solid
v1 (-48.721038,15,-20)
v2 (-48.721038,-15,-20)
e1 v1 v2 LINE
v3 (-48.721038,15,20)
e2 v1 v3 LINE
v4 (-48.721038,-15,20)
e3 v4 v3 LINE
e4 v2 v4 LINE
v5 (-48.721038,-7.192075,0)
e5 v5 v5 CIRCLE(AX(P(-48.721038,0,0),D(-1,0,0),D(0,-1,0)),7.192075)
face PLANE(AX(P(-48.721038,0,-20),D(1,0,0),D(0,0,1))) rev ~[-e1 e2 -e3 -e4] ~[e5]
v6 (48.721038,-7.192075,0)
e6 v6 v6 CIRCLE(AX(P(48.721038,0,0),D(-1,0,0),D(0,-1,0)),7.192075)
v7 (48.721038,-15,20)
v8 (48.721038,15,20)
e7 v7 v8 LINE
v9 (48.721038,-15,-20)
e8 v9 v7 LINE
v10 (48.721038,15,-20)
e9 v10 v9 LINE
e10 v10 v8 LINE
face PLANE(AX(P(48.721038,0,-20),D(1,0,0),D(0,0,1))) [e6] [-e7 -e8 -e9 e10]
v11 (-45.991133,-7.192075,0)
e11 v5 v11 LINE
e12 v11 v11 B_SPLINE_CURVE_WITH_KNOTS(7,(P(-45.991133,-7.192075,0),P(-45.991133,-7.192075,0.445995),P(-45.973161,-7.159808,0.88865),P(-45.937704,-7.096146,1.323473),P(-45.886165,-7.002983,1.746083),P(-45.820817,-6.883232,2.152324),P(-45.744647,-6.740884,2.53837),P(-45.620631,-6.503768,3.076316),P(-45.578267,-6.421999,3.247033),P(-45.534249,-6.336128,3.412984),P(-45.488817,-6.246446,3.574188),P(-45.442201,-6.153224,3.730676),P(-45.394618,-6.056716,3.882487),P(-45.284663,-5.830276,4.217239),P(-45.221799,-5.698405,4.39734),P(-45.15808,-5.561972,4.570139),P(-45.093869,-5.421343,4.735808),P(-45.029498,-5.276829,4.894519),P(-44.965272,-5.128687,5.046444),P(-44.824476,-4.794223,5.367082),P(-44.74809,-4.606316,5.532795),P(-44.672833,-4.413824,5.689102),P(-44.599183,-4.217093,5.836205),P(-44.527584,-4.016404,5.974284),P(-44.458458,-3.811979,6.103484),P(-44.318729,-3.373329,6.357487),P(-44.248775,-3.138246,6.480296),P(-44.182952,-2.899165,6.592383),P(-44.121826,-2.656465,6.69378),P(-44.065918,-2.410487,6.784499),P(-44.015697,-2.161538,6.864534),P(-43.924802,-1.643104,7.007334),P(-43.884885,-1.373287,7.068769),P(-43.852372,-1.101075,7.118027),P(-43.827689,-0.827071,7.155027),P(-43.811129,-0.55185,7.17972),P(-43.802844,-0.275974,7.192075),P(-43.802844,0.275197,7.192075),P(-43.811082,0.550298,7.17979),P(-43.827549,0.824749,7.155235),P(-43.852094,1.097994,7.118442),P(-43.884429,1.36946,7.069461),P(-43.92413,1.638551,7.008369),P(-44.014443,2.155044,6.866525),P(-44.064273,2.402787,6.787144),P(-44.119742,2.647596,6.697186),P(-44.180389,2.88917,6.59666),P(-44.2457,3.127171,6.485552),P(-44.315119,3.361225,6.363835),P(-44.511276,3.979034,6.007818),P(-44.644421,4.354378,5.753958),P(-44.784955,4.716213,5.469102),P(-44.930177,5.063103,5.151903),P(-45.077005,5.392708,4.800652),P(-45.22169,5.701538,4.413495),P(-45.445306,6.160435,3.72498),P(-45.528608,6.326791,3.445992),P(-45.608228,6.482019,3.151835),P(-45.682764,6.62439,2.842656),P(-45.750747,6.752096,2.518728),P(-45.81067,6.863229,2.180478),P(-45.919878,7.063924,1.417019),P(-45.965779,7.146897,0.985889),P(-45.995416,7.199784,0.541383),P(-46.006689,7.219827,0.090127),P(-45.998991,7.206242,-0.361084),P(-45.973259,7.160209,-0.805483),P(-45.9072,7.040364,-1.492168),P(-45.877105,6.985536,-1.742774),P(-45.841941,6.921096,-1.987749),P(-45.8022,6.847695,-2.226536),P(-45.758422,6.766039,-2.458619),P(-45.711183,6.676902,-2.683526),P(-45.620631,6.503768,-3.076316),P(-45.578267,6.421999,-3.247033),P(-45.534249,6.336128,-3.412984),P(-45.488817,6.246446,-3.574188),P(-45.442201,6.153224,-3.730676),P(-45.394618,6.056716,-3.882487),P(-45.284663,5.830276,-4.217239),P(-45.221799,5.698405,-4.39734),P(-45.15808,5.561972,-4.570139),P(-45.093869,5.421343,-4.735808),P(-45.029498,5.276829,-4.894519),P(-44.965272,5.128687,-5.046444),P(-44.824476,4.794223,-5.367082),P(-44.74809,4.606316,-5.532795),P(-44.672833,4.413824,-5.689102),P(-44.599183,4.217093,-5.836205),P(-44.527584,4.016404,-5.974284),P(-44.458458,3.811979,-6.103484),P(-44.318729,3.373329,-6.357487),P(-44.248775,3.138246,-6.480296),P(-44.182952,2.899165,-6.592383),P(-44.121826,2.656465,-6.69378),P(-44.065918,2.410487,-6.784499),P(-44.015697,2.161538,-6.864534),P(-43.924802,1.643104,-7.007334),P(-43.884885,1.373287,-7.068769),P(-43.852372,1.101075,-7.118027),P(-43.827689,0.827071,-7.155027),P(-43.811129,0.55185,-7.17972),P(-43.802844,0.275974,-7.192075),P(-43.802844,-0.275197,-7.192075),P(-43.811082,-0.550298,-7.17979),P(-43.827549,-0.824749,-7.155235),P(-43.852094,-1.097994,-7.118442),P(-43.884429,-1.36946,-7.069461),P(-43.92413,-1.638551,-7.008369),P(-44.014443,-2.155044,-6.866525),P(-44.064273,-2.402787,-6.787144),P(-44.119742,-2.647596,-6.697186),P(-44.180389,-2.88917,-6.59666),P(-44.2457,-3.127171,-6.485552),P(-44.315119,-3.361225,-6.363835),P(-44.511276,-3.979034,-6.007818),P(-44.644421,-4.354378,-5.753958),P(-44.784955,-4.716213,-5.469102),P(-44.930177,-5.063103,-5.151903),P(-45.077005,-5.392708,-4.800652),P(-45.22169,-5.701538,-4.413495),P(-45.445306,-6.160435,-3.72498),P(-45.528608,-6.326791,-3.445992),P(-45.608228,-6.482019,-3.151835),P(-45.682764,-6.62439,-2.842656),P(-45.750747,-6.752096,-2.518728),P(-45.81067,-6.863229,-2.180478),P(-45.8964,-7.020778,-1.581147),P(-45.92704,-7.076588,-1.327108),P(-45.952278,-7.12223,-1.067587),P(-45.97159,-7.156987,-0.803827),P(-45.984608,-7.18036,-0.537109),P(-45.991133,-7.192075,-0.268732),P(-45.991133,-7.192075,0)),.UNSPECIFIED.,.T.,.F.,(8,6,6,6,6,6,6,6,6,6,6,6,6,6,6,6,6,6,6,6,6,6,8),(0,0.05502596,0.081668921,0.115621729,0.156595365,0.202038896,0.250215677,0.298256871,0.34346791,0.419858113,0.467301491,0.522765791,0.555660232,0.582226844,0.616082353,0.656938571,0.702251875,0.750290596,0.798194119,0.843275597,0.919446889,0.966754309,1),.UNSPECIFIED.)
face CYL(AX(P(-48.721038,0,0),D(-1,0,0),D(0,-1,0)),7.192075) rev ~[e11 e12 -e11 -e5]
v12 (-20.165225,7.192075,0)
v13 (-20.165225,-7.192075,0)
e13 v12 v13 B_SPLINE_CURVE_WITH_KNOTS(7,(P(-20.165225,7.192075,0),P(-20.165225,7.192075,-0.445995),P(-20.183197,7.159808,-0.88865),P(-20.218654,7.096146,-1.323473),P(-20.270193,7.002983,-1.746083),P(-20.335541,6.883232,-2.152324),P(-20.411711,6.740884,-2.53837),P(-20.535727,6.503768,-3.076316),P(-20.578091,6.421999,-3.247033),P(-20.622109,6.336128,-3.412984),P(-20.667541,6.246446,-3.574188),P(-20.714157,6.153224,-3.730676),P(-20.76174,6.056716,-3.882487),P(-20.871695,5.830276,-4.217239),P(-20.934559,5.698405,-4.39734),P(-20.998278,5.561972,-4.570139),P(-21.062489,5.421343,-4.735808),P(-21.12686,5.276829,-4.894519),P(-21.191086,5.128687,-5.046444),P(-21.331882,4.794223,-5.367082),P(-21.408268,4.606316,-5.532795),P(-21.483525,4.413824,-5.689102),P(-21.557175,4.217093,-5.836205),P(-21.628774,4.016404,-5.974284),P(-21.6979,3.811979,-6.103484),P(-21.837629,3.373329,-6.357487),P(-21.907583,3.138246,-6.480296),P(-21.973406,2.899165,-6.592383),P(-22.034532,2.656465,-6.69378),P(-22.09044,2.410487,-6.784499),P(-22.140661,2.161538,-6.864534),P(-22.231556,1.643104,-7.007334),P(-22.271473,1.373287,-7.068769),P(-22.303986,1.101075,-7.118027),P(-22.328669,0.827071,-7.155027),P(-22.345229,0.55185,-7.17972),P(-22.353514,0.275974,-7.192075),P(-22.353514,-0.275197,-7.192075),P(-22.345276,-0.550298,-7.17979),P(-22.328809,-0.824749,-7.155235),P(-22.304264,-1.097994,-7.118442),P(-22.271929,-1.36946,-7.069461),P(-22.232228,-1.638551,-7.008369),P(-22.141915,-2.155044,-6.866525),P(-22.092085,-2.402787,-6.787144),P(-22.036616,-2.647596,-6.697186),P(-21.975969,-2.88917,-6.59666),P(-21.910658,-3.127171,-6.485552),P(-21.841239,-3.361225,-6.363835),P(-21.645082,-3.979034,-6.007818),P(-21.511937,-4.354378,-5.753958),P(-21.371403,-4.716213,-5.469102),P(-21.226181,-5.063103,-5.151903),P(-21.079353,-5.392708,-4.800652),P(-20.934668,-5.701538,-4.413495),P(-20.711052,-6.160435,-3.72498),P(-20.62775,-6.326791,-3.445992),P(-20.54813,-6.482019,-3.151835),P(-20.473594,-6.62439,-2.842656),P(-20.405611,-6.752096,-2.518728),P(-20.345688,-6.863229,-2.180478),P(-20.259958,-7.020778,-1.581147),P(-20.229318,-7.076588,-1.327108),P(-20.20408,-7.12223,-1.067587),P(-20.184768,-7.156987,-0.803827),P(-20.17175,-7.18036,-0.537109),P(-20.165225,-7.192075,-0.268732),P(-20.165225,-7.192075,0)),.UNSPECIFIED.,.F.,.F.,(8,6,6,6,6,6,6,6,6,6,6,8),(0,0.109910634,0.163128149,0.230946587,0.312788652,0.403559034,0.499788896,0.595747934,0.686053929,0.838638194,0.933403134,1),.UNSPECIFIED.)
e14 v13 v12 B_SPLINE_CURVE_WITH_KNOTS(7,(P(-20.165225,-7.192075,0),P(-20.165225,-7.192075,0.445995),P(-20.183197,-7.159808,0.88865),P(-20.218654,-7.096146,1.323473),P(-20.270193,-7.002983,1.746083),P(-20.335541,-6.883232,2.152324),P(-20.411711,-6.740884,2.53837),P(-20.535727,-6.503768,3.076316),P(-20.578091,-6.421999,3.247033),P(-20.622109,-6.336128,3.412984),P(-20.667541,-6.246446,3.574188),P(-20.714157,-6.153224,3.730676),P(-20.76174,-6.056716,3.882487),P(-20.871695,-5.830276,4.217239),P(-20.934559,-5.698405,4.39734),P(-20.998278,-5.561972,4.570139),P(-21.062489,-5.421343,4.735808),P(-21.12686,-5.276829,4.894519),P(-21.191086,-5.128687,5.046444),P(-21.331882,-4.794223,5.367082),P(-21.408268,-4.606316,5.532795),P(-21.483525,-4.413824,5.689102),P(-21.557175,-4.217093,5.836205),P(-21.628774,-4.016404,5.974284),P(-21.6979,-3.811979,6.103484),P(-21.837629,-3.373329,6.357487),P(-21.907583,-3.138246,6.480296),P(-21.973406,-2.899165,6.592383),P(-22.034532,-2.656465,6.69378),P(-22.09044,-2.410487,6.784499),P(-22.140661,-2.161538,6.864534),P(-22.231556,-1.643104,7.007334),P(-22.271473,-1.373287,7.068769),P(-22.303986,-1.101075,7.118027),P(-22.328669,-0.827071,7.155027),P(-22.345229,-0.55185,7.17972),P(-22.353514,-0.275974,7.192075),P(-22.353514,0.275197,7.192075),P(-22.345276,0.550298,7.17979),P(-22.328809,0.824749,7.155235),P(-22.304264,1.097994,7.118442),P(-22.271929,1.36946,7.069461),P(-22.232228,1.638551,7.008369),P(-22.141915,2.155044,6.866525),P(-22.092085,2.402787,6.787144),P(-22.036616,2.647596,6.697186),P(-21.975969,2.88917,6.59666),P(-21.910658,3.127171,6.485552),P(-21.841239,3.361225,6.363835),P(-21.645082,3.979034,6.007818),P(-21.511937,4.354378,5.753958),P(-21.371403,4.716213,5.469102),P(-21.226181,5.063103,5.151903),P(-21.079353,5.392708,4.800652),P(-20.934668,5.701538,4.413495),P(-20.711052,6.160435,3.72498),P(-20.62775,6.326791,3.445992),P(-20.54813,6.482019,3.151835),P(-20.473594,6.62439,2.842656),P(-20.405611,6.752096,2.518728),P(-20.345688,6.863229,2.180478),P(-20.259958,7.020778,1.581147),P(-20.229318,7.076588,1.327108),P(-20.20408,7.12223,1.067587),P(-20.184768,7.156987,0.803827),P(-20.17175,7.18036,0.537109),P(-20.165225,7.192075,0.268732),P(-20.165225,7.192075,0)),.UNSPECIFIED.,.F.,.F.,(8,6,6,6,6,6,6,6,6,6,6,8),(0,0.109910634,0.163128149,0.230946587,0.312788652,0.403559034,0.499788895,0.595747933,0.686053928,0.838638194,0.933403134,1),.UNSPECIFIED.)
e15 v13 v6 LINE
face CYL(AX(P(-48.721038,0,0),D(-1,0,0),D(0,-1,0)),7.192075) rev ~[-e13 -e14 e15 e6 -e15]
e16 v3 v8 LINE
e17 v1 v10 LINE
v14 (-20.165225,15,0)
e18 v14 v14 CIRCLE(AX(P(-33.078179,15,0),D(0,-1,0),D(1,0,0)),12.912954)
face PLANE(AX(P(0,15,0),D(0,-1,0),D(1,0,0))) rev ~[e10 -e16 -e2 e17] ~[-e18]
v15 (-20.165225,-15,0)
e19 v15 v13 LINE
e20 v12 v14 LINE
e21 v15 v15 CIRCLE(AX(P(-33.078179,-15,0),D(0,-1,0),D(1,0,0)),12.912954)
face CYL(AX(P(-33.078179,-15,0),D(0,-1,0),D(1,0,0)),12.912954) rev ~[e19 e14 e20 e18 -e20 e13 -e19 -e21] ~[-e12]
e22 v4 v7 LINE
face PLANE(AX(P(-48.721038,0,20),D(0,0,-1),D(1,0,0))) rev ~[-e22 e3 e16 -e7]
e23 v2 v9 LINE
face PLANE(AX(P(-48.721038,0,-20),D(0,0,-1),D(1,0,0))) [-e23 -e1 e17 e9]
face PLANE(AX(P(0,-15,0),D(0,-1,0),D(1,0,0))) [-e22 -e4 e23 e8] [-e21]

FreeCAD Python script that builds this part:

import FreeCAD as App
import Part
import Sketcher

doc = App.newDocument("Part")
body = doc.addObject("PartDesign::Body", "Body")

# Sketch on XZ plane
sketch1 = body.newObject("Sketcher::SketchObject", "Sketch")
sketch1.AttachmentSupport = (doc.getObject("XZ_Plane"), [""])
sketch1.MapMode = "FlatFace"
sketch1.addGeometry(Part.LineSegment(App.Vector(-49, 20, 0), App.Vector(-49, -20, 0)), False)
sketch1.addGeometry(Part.LineSegment(App.Vector(-49, -20, 0), App.Vector(49, -20, 0)), False)
sketch1.addGeometry(Part.LineSegment(App.Vector(49, -20, 0), App.Vector(49, 20, 0)), False)
sketch1.addGeometry(Part.LineSegment(App.Vector(49, 20, 0), App.Vector(-49, 20, 0)), False)
sketch1.addConstraint(Sketcher.Constraint("Coincident", 0, 2, 1, 1))
sketch1.addConstraint(Sketcher.Constraint("Coincident", 1, 2, 2, 1))
sketch1.addConstraint(Sketcher.Constraint("Coincident", 2, 2, 3, 1))
sketch1.addConstraint(Sketcher.Constraint("Coincident", 3, 2, 0, 1))
sketch1.addConstraint(Sketcher.Constraint("Vertical", 0))
sketch1.addConstraint(Sketcher.Constraint("Horizontal", 1))
sketch1.addConstraint(Sketcher.Constraint("Vertical", 2))
sketch1.addConstraint(Sketcher.Constraint("Horizontal", 3))
sketch1.addConstraint(Sketcher.Constraint("Symmetric", 0, 2, 2, 2, -1, 1))
sketch1.addConstraint(Sketcher.Constraint("DistanceY", 0, 2, 0, 1, 40.0))
sketch1.addConstraint(Sketcher.Constraint("DistanceX", 1, 1, 1, 2, 97.442076))
pad1 = body.newObject("PartDesign::Pad", "Pad")
pad1.Profile = sketch1
pad1.Length = 30
pad1.Midplane = True

# Sketch on XZ plane
sketch2 = body.newObject("Sketcher::SketchObject", "Sketch001")
sketch2.AttachmentSupport = (doc.getObject("XZ_Plane"), [""])
sketch2.MapMode = "FlatFace"
sketch2.AttachmentOffset = App.Placement(App.Vector(0, 0, 15), App.Rotation())
sketch2.addGeometry(Part.Circle(App.Vector(-33, 0, 0), App.Vector(0, 0, 1), 13), False)
sketch2.addConstraint(Sketcher.Constraint("PointOnObject", 0, 3, -1))
sketch2.addConstraint(Sketcher.Constraint("Diameter", 0, 25.825908))
sketch2.addConstraint(Sketcher.Constraint("DistanceX", 0, 3, -1, 1, 33.078179))
pocket1 = body.newObject("PartDesign::Pocket", "Pocket")
pocket1.Profile = sketch2
pocket1.Length = 100

# Sketch on YZ plane
sketch3 = body.newObject("Sketcher::SketchObject", "Sketch002")
sketch3.AttachmentSupport = (doc.getObject("YZ_Plane"), [""])
sketch3.MapMode = "FlatFace"
sketch3.AttachmentOffset = App.Placement(App.Vector(0, 0, -48.721038), App.Rotation())
sketch3.addGeometry(Part.Circle(App.Vector(0, 0, 0), App.Vector(0, 0, 1), 7), False)
sketch3.addConstraint(Sketcher.Constraint("Coincident", 0, 3, -1, 1))
sketch3.addConstraint(Sketcher.Constraint("Diameter", 0, 14.38415))
pocket2 = body.newObject("PartDesign::Pocket", "Pocket001")
pocket2.Profile = sketch3
pocket2.Length = 1000
pocket2.Reversed = True

doc.recompute()
